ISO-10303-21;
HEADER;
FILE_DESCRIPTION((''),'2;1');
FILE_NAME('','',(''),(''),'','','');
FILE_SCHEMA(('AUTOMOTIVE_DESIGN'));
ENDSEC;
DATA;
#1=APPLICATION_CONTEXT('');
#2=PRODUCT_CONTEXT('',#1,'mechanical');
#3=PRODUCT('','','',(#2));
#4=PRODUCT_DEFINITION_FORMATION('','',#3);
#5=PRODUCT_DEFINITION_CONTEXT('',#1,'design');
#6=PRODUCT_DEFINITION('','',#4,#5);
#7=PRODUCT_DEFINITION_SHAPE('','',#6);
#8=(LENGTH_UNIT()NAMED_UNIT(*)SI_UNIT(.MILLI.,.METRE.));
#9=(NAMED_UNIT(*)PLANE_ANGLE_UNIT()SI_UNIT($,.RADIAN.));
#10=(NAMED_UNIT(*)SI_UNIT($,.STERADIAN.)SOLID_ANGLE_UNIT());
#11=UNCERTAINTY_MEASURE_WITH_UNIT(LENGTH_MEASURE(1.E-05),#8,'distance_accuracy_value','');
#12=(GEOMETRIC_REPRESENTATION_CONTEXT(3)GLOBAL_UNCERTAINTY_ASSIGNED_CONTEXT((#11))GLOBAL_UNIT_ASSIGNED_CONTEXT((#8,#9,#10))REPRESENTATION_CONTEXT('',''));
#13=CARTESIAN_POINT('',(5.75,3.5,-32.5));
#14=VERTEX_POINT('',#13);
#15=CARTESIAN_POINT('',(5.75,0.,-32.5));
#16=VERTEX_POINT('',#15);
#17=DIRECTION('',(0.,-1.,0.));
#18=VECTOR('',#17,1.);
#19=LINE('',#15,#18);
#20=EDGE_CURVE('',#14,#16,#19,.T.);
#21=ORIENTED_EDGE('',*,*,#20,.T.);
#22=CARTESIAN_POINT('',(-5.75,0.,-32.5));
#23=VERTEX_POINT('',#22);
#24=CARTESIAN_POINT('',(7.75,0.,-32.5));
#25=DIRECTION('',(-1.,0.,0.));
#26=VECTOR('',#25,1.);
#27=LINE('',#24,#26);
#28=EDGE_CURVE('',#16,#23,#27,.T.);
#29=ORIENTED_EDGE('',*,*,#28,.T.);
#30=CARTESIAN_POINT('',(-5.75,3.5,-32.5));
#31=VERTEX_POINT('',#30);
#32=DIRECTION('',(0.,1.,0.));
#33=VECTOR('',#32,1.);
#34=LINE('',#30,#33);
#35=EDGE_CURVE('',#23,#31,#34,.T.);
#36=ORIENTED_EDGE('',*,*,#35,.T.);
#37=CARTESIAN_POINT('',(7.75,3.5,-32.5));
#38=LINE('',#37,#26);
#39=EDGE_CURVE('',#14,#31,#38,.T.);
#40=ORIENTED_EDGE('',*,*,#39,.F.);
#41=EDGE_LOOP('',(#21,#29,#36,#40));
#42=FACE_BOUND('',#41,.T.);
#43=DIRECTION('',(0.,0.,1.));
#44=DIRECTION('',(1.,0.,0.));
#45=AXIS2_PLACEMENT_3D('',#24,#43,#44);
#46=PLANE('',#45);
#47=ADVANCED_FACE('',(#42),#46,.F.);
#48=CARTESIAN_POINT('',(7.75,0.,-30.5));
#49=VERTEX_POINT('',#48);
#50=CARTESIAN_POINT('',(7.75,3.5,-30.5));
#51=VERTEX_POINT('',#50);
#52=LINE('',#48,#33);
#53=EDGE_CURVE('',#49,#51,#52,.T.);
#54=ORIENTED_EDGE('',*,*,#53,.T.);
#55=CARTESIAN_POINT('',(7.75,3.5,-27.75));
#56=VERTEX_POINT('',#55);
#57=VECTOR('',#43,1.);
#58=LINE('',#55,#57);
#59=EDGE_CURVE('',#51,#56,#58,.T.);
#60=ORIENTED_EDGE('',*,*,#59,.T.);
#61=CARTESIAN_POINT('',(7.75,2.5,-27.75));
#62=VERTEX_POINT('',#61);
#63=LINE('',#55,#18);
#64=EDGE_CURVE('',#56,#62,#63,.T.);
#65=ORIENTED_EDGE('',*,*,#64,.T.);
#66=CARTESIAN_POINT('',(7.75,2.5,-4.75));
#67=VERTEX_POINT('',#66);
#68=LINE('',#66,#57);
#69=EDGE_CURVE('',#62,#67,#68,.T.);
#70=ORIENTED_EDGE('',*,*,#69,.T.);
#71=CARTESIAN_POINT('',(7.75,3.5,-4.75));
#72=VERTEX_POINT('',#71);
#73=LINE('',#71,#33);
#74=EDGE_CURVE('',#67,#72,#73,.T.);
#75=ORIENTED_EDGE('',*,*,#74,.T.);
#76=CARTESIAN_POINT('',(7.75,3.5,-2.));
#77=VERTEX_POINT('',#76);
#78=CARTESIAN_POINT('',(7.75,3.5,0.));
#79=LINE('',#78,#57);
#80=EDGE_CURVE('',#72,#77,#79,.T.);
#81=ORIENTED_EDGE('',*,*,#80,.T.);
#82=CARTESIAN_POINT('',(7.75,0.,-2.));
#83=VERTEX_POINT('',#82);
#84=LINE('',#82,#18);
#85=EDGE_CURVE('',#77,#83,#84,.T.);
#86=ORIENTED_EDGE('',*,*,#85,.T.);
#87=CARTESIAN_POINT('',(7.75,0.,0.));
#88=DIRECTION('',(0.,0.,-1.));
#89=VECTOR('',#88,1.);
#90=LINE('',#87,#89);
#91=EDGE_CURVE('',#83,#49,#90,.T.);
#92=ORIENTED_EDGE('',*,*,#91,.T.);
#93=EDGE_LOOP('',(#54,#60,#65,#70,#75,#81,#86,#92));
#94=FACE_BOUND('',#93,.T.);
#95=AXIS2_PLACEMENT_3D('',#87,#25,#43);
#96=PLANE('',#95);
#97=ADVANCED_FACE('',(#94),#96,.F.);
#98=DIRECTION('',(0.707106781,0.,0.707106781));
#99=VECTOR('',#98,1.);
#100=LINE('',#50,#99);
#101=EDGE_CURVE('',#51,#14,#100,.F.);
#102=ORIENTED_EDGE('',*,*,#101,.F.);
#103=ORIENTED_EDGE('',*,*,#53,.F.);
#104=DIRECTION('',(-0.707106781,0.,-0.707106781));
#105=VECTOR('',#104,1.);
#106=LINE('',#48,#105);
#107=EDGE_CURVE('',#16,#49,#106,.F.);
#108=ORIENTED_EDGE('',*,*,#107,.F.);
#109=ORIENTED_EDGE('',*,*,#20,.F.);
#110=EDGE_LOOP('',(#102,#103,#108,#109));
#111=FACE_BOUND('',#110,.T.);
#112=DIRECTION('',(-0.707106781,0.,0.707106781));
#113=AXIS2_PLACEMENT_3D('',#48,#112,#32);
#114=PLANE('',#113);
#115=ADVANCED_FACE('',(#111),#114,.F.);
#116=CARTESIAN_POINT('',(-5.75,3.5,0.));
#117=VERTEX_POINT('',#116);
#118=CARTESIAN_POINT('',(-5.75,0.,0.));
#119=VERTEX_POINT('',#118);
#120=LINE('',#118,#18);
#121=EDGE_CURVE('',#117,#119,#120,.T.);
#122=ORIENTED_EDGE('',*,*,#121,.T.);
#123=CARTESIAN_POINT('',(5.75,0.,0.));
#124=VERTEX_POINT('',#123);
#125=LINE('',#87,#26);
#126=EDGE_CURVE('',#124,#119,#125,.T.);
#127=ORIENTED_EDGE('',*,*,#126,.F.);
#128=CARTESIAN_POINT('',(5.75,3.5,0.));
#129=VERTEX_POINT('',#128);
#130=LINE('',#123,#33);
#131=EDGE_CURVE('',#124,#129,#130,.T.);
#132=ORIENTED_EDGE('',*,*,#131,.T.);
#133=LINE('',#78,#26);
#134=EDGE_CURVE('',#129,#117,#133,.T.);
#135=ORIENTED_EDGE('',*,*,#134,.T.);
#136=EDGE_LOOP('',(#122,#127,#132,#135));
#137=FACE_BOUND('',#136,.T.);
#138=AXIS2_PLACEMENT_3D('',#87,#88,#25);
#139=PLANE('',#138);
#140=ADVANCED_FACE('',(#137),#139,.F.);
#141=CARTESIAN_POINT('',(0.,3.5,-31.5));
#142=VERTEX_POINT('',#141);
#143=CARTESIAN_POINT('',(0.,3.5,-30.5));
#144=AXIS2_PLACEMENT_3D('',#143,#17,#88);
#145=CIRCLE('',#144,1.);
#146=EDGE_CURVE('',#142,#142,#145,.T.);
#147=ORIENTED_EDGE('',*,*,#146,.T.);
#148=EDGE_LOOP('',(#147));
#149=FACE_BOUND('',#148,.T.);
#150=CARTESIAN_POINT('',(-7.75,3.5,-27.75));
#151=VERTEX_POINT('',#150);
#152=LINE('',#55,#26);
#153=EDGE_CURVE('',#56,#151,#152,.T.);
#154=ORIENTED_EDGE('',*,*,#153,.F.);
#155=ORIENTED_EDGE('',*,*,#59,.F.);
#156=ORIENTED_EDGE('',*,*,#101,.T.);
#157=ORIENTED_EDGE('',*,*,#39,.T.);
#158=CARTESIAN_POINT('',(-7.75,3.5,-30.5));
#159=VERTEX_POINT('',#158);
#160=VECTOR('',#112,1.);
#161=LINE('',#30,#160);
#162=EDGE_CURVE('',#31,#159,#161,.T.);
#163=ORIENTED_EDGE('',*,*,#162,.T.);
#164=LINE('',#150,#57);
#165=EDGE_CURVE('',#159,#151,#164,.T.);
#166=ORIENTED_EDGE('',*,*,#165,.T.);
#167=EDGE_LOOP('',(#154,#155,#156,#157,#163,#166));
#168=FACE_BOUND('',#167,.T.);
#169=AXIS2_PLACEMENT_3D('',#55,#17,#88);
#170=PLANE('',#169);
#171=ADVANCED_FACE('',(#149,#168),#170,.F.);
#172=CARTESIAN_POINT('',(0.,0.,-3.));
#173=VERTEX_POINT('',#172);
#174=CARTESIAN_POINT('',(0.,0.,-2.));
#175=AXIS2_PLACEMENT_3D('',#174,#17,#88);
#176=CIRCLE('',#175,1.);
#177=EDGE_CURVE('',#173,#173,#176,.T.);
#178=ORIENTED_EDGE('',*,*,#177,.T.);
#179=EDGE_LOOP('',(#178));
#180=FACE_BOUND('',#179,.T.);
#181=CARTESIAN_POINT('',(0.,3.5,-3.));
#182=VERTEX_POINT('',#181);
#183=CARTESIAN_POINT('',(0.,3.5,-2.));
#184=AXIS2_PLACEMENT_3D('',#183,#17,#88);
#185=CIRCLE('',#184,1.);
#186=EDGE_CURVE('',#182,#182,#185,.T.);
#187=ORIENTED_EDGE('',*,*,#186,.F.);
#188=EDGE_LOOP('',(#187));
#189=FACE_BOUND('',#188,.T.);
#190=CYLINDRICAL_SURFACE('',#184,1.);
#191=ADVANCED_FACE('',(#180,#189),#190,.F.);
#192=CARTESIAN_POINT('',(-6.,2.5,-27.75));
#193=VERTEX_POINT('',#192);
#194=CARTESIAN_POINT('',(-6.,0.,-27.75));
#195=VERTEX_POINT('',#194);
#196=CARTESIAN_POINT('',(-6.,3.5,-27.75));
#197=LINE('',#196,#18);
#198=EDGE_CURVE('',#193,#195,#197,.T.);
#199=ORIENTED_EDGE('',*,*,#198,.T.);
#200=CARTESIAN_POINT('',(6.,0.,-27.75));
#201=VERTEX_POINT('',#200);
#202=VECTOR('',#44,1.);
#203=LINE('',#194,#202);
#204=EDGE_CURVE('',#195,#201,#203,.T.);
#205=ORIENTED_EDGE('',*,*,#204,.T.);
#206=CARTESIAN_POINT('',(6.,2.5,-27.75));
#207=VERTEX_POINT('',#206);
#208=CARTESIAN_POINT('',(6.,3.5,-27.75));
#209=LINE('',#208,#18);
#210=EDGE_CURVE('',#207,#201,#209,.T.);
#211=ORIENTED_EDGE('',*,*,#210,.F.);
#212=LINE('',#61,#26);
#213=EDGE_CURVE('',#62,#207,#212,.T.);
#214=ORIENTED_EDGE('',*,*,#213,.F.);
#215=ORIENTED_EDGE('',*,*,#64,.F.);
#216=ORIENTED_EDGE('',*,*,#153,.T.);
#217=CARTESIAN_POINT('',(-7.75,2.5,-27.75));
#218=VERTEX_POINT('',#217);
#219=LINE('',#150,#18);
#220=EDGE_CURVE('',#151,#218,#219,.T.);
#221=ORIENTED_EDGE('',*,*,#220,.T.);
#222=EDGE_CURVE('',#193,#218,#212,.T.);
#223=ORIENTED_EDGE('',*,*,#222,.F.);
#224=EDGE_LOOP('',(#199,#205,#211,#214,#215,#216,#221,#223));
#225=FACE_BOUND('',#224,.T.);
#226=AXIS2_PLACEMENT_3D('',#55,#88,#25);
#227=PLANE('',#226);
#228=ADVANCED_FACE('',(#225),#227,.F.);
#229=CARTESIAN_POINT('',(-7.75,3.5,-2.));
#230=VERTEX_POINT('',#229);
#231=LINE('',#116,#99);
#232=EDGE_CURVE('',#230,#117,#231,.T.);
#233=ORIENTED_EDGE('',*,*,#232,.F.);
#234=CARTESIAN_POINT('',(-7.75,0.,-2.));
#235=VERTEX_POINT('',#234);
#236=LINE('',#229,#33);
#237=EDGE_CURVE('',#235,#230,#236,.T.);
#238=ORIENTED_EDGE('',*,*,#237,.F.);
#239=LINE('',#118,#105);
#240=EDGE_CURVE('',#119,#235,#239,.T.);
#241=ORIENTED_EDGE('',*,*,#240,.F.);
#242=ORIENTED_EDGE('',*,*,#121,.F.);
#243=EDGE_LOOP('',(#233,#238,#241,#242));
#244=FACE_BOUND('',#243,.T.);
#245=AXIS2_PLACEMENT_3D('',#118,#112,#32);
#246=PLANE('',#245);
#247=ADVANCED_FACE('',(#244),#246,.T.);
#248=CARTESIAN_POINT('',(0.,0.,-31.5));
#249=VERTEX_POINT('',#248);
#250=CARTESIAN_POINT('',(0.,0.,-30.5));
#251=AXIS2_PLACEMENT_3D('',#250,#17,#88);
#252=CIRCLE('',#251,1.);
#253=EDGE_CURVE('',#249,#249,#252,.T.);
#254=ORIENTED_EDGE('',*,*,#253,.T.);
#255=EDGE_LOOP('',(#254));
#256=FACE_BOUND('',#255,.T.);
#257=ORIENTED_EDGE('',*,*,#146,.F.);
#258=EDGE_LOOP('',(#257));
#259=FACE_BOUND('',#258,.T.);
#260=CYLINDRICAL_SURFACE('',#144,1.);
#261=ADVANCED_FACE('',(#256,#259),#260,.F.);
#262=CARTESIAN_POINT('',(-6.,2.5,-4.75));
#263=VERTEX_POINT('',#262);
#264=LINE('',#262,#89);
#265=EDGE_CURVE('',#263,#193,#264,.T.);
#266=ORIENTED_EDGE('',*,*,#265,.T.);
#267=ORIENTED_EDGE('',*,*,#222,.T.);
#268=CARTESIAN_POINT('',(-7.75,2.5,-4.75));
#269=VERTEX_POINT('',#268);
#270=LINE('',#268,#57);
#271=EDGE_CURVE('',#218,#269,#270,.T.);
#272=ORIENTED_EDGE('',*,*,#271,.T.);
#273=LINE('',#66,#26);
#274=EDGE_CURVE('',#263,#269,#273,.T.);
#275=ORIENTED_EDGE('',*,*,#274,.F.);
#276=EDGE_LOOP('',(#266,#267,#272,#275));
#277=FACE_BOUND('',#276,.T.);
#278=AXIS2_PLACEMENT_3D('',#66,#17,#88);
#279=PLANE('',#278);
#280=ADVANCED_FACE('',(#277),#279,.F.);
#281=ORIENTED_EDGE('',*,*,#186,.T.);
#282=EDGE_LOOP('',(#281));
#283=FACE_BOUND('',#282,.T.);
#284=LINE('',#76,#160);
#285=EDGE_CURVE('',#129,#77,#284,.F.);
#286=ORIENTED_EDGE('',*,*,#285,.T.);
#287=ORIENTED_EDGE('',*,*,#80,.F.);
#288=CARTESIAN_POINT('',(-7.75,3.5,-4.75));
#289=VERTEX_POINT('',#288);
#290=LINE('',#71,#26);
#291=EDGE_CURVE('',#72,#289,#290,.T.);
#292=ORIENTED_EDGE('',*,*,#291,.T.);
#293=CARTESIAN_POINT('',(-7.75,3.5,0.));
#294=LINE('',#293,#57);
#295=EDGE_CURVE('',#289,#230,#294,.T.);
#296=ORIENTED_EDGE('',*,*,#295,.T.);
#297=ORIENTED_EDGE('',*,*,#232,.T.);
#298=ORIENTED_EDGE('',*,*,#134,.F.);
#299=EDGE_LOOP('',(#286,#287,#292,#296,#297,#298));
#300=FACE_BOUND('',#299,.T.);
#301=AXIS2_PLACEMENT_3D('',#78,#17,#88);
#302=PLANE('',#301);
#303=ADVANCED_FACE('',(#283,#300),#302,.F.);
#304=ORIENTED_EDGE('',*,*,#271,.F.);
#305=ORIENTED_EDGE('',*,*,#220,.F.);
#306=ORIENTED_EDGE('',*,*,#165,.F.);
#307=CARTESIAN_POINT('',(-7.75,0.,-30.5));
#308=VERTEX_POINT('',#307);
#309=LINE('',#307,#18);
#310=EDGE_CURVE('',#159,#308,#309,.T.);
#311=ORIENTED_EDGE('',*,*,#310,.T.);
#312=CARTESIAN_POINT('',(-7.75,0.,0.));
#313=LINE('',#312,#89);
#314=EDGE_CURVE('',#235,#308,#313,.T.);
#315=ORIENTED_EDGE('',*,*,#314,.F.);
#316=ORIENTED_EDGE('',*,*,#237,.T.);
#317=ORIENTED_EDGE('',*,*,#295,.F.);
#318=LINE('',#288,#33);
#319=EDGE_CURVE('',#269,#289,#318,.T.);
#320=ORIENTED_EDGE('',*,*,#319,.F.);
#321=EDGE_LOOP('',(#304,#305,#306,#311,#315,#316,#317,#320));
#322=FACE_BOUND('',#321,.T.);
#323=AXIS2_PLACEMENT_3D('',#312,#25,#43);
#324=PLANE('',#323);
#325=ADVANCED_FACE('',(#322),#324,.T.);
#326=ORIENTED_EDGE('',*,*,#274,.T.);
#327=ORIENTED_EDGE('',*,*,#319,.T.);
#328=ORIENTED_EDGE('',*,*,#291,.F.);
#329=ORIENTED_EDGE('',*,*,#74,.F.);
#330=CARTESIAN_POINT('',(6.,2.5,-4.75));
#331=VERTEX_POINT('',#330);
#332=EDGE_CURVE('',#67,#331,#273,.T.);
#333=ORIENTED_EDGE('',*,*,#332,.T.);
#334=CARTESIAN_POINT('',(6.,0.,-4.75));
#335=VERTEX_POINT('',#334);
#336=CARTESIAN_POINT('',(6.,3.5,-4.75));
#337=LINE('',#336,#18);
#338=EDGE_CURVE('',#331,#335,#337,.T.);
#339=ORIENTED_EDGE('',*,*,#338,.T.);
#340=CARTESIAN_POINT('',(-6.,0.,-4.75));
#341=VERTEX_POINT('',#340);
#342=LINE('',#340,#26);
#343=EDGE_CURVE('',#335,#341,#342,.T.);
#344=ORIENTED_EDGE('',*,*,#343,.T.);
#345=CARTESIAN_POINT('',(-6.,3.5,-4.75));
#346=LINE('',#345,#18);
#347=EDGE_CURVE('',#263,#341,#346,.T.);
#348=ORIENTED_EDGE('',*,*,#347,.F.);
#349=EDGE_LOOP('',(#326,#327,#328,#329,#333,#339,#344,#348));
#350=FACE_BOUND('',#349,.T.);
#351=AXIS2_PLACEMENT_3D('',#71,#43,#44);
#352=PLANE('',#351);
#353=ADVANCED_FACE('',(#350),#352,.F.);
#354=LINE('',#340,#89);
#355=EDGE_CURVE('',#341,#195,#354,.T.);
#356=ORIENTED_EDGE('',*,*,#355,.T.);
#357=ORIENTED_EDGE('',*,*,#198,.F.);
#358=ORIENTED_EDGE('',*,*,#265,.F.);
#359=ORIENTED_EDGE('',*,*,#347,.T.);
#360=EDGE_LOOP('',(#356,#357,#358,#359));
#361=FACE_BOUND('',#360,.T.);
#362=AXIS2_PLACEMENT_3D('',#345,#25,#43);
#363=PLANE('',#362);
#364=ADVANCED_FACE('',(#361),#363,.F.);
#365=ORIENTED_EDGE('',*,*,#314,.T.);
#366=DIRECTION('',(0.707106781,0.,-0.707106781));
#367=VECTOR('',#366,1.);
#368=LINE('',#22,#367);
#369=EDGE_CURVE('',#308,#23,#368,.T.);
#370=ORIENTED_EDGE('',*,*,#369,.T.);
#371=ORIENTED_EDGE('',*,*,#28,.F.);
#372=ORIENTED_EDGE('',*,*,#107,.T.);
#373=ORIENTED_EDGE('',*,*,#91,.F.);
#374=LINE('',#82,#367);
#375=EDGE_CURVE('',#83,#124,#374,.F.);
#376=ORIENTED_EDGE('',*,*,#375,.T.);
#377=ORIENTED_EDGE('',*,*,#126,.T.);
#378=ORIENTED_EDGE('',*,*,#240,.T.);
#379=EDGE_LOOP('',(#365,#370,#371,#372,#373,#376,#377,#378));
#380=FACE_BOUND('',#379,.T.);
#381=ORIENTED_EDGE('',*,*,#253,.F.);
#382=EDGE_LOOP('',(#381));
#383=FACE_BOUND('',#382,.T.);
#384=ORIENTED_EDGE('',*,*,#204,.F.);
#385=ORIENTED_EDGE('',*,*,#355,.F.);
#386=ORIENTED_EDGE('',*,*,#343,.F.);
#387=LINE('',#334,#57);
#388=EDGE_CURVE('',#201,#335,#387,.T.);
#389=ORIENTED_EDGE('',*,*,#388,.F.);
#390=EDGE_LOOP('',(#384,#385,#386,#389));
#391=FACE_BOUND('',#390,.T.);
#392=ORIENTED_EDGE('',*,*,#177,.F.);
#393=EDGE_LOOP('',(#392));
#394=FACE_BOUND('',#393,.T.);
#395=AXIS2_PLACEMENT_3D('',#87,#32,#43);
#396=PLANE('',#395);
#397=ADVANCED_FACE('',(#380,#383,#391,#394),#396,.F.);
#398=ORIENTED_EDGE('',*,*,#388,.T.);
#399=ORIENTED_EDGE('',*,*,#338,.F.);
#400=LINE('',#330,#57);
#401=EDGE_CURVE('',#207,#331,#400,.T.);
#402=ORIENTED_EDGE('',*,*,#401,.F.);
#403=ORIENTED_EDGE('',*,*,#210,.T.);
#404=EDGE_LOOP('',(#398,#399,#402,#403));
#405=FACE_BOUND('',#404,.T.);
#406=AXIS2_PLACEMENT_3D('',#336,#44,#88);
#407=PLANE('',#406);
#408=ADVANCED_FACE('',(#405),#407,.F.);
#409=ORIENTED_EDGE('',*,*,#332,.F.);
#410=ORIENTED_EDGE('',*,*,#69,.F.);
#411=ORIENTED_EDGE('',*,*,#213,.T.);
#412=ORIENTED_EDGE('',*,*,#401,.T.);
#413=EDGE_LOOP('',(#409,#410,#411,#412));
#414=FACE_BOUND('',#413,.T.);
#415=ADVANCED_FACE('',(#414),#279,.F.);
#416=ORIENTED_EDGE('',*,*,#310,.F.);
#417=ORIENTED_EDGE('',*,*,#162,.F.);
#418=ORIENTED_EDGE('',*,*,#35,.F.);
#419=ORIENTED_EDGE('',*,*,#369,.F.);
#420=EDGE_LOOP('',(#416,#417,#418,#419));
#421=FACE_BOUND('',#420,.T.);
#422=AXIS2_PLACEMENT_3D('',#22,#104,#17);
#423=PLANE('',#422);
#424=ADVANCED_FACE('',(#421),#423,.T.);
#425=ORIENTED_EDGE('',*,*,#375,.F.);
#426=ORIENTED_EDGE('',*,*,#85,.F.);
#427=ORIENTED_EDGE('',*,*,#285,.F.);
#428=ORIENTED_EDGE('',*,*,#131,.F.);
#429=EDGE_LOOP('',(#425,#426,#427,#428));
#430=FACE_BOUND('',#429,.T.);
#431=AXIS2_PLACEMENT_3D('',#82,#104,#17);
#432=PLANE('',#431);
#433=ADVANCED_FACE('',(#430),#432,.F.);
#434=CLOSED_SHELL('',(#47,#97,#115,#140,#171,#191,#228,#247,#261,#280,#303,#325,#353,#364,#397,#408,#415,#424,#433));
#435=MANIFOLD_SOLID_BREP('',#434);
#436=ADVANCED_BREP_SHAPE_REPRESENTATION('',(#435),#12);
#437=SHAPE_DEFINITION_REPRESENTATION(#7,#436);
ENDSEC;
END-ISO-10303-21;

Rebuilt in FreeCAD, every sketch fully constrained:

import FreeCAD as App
import Part
import Sketcher

V = App.Vector
Q = App.Units.Quantity


def edges_at(feature, points):
    """Names of the edges that pass closest to the given points."""
    edges = feature.Shape.Edges
    near = lambda p: min(range(len(edges)), key=lambda i: edges[i].distToShape(Part.Vertex(*p))[0])
    return sorted({f"Edge{near(p) + 1}" for p in points})

doc = App.newDocument("Part")
params = doc.addObject("Spreadsheet::Sheet", "Params")
for row, (alias, value) in enumerate([
    ("sketch1_width", "1 mm"),
    ("sketch1_height", "23 mm"),
    ("sketch1_width2", "3.5 mm"),
    ("sketch1_height2", "32.5 mm"),
    ("pad1_length", "15.5 mm"),
    ("sketch2_diameter", "2 mm"),
    ("sketch2_width", "12 mm"),
    ("sketch2_height", "23 mm"),
    ("chamfer_size", "2 mm"),
], start=1):
    params.set(f"A{row}", alias)
    params.set(f"B{row}", "=" + value)
    params.setAlias(f"B{row}", alias)

body = doc.addObject("PartDesign::Body", "Body")

# Sketch on YZ plane
sketch1 = body.newObject("Sketcher::SketchObject", "Sketch")
sketch1.AttachmentSupport = (doc.getObject("YZ_Plane"), [""])
sketch1.MapMode = "FlatFace"
sketch1.addGeometry([
    Part.LineSegment(V(3.5, -32.5, 0), V(3.5, -27.8, 0)),  # 0
    Part.LineSegment(V(3.5, -27.8, 0), V(2.5, -27.8, 0)),  # 1
    Part.LineSegment(V(2.5, -27.8, 0), V(2.5, -4.8, 0)),  # 2
    Part.LineSegment(V(2.5, -4.8, 0), V(3.5, -4.8, 0)),  # 3
    Part.LineSegment(V(3.5, -4.8, 0), V(3.5, 0, 0)),  # 4
    Part.LineSegment(V(3.5, 0, 0), V(0, 0, 0)),  # 5
    Part.LineSegment(V(0, 0, 0), V(0, -32.5, 0)),  # 6
    Part.LineSegment(V(0, -32.5, 0), V(3.5, -32.5, 0)),  # 7
], False)
sketch1.addConstraint([
    Sketcher.Constraint("Coincident", 0, 2, 1, 1),
    Sketcher.Constraint("Coincident", 1, 2, 2, 1),
    Sketcher.Constraint("Coincident", 2, 2, 3, 1),
    Sketcher.Constraint("Coincident", 3, 2, 4, 1),
    Sketcher.Constraint("Coincident", 4, 2, 5, 1),
    Sketcher.Constraint("Coincident", 5, 2, 6, 1),
    Sketcher.Constraint("Coincident", 6, 2, 7, 1),
    Sketcher.Constraint("Coincident", 7, 2, 0, 1),
    Sketcher.Constraint("Vertical", 0),
    Sketcher.Constraint("Horizontal", 1),
    Sketcher.Constraint("Vertical", 2),
    Sketcher.Constraint("Horizontal", 3),
    Sketcher.Constraint("Vertical", 4),
    Sketcher.Constraint("Horizontal", 5),
    Sketcher.Constraint("Vertical", 6),
    Sketcher.Constraint("Horizontal", 7),
    Sketcher.Constraint("Coincident", 5, 2, -1, 1),
    Sketcher.Constraint("Vertical", 0, 2, 3, 2),
    Sketcher.Constraint("Equal", 0, 4),
    Sketcher.Constraint("DistanceX", 1, 2, 1, 1, Q("1 mm")),
    Sketcher.Constraint("DistanceY", 2, 1, 2, 2, Q("23 mm")),
    Sketcher.Constraint("DistanceX", 5, 2, 5, 1, Q("3.5 mm")),
    Sketcher.Constraint("DistanceY", 6, 2, 6, 1, Q("32.5 mm")),
])
sketch1.setExpression("Constraints[19]", "Params.sketch1_width")
sketch1.setExpression("Constraints[20]", "Params.sketch1_height")
sketch1.setExpression("Constraints[21]", "Params.sketch1_width2")
sketch1.setExpression("Constraints[22]", "Params.sketch1_height2")
pad1 = body.newObject("PartDesign::Pad", "Pad")
pad1.Profile = sketch1
pad1.setExpression("Length", "Params.pad1_length")
pad1.Midplane = True

# Sketch on XZ plane
sketch2 = body.newObject("Sketcher::SketchObject", "Sketch001")
sketch2.AttachmentSupport = (doc.getObject("XZ_Plane"), [""])
sketch2.MapMode = "FlatFace"
sketch2.addGeometry([
    Part.Circle(V(0, -2, 0), V(0, 0, 1), 1),  # 0
    Part.Circle(V(0, -30.5, 0), V(0, 0, 1), 1),  # 1
    Part.LineSegment(V(-6, -4.8, 0), V(-6, -27.8, 0)),  # 2
    Part.LineSegment(V(-6, -27.8, 0), V(6, -27.8, 0)),  # 3
    Part.LineSegment(V(6, -27.8, 0), V(6, -4.8, 0)),  # 4
    Part.LineSegment(V(6, -4.8, 0), V(-6, -4.8, 0)),  # 5
], False)
sketch2.addConstraint([
    Sketcher.Constraint("Coincident", 2, 2, 3, 1),
    Sketcher.Constraint("Coincident", 3, 2, 4, 1),
    Sketcher.Constraint("Coincident", 4, 2, 5, 1),
    Sketcher.Constraint("Coincident", 5, 2, 2, 1),
    Sketcher.Constraint("Vertical", 2),
    Sketcher.Constraint("Horizontal", 3),
    Sketcher.Constraint("Vertical", 4),
    Sketcher.Constraint("Horizontal", 5),
    Sketcher.Constraint("Equal", 0, 1),
    Sketcher.Constraint("PointOnObject", 0, 3, -2),
    Sketcher.Constraint("PointOnObject", 1, 3, -2),
    Sketcher.Constraint("Diameter", 0, Q("2 mm")),
    Sketcher.Constraint("DistanceX", 3, 1, 3, 2, Q("12 mm")),
    Sketcher.Constraint("DistanceY", 2, 2, 2, 1, Q("23 mm")),
    Sketcher.Constraint("DistanceY", 0, 3, -1, 1, Q("2 mm")),
    Sketcher.Constraint("DistanceX", 2, 2, -1, 1, Q("6 mm")),
    Sketcher.Constraint("DistanceY", 1, 3, -1, 1, Q("30.5 mm")),
    Sketcher.Constraint("DistanceY", 2, 2, -1, 1, Q("27.75 mm")),
])
sketch2.setExpression("Constraints[11]", "Params.sketch2_diameter")
sketch2.setExpression("Constraints[12]", "Params.sketch2_width")
sketch2.setExpression("Constraints[13]", "Params.sketch2_height")
pocket1 = body.newObject("PartDesign::Pocket", "Pocket")
pocket1.Profile = sketch2
pocket1.Type = "ThroughAll"
doc.recompute()

chamfer = body.newObject("PartDesign::Chamfer", "Chamfer")
chamfer.Base = (pocket1, edges_at(pocket1, [
    (7.75, 1.75, -32.5),
    (-7.75, 1.75, 0),
    (7.75, 1.75, 0),
    (-7.75, 1.75, -32.5),
]))
chamfer.setExpression("Size", "Params.chamfer_size")

doc.recompute()
